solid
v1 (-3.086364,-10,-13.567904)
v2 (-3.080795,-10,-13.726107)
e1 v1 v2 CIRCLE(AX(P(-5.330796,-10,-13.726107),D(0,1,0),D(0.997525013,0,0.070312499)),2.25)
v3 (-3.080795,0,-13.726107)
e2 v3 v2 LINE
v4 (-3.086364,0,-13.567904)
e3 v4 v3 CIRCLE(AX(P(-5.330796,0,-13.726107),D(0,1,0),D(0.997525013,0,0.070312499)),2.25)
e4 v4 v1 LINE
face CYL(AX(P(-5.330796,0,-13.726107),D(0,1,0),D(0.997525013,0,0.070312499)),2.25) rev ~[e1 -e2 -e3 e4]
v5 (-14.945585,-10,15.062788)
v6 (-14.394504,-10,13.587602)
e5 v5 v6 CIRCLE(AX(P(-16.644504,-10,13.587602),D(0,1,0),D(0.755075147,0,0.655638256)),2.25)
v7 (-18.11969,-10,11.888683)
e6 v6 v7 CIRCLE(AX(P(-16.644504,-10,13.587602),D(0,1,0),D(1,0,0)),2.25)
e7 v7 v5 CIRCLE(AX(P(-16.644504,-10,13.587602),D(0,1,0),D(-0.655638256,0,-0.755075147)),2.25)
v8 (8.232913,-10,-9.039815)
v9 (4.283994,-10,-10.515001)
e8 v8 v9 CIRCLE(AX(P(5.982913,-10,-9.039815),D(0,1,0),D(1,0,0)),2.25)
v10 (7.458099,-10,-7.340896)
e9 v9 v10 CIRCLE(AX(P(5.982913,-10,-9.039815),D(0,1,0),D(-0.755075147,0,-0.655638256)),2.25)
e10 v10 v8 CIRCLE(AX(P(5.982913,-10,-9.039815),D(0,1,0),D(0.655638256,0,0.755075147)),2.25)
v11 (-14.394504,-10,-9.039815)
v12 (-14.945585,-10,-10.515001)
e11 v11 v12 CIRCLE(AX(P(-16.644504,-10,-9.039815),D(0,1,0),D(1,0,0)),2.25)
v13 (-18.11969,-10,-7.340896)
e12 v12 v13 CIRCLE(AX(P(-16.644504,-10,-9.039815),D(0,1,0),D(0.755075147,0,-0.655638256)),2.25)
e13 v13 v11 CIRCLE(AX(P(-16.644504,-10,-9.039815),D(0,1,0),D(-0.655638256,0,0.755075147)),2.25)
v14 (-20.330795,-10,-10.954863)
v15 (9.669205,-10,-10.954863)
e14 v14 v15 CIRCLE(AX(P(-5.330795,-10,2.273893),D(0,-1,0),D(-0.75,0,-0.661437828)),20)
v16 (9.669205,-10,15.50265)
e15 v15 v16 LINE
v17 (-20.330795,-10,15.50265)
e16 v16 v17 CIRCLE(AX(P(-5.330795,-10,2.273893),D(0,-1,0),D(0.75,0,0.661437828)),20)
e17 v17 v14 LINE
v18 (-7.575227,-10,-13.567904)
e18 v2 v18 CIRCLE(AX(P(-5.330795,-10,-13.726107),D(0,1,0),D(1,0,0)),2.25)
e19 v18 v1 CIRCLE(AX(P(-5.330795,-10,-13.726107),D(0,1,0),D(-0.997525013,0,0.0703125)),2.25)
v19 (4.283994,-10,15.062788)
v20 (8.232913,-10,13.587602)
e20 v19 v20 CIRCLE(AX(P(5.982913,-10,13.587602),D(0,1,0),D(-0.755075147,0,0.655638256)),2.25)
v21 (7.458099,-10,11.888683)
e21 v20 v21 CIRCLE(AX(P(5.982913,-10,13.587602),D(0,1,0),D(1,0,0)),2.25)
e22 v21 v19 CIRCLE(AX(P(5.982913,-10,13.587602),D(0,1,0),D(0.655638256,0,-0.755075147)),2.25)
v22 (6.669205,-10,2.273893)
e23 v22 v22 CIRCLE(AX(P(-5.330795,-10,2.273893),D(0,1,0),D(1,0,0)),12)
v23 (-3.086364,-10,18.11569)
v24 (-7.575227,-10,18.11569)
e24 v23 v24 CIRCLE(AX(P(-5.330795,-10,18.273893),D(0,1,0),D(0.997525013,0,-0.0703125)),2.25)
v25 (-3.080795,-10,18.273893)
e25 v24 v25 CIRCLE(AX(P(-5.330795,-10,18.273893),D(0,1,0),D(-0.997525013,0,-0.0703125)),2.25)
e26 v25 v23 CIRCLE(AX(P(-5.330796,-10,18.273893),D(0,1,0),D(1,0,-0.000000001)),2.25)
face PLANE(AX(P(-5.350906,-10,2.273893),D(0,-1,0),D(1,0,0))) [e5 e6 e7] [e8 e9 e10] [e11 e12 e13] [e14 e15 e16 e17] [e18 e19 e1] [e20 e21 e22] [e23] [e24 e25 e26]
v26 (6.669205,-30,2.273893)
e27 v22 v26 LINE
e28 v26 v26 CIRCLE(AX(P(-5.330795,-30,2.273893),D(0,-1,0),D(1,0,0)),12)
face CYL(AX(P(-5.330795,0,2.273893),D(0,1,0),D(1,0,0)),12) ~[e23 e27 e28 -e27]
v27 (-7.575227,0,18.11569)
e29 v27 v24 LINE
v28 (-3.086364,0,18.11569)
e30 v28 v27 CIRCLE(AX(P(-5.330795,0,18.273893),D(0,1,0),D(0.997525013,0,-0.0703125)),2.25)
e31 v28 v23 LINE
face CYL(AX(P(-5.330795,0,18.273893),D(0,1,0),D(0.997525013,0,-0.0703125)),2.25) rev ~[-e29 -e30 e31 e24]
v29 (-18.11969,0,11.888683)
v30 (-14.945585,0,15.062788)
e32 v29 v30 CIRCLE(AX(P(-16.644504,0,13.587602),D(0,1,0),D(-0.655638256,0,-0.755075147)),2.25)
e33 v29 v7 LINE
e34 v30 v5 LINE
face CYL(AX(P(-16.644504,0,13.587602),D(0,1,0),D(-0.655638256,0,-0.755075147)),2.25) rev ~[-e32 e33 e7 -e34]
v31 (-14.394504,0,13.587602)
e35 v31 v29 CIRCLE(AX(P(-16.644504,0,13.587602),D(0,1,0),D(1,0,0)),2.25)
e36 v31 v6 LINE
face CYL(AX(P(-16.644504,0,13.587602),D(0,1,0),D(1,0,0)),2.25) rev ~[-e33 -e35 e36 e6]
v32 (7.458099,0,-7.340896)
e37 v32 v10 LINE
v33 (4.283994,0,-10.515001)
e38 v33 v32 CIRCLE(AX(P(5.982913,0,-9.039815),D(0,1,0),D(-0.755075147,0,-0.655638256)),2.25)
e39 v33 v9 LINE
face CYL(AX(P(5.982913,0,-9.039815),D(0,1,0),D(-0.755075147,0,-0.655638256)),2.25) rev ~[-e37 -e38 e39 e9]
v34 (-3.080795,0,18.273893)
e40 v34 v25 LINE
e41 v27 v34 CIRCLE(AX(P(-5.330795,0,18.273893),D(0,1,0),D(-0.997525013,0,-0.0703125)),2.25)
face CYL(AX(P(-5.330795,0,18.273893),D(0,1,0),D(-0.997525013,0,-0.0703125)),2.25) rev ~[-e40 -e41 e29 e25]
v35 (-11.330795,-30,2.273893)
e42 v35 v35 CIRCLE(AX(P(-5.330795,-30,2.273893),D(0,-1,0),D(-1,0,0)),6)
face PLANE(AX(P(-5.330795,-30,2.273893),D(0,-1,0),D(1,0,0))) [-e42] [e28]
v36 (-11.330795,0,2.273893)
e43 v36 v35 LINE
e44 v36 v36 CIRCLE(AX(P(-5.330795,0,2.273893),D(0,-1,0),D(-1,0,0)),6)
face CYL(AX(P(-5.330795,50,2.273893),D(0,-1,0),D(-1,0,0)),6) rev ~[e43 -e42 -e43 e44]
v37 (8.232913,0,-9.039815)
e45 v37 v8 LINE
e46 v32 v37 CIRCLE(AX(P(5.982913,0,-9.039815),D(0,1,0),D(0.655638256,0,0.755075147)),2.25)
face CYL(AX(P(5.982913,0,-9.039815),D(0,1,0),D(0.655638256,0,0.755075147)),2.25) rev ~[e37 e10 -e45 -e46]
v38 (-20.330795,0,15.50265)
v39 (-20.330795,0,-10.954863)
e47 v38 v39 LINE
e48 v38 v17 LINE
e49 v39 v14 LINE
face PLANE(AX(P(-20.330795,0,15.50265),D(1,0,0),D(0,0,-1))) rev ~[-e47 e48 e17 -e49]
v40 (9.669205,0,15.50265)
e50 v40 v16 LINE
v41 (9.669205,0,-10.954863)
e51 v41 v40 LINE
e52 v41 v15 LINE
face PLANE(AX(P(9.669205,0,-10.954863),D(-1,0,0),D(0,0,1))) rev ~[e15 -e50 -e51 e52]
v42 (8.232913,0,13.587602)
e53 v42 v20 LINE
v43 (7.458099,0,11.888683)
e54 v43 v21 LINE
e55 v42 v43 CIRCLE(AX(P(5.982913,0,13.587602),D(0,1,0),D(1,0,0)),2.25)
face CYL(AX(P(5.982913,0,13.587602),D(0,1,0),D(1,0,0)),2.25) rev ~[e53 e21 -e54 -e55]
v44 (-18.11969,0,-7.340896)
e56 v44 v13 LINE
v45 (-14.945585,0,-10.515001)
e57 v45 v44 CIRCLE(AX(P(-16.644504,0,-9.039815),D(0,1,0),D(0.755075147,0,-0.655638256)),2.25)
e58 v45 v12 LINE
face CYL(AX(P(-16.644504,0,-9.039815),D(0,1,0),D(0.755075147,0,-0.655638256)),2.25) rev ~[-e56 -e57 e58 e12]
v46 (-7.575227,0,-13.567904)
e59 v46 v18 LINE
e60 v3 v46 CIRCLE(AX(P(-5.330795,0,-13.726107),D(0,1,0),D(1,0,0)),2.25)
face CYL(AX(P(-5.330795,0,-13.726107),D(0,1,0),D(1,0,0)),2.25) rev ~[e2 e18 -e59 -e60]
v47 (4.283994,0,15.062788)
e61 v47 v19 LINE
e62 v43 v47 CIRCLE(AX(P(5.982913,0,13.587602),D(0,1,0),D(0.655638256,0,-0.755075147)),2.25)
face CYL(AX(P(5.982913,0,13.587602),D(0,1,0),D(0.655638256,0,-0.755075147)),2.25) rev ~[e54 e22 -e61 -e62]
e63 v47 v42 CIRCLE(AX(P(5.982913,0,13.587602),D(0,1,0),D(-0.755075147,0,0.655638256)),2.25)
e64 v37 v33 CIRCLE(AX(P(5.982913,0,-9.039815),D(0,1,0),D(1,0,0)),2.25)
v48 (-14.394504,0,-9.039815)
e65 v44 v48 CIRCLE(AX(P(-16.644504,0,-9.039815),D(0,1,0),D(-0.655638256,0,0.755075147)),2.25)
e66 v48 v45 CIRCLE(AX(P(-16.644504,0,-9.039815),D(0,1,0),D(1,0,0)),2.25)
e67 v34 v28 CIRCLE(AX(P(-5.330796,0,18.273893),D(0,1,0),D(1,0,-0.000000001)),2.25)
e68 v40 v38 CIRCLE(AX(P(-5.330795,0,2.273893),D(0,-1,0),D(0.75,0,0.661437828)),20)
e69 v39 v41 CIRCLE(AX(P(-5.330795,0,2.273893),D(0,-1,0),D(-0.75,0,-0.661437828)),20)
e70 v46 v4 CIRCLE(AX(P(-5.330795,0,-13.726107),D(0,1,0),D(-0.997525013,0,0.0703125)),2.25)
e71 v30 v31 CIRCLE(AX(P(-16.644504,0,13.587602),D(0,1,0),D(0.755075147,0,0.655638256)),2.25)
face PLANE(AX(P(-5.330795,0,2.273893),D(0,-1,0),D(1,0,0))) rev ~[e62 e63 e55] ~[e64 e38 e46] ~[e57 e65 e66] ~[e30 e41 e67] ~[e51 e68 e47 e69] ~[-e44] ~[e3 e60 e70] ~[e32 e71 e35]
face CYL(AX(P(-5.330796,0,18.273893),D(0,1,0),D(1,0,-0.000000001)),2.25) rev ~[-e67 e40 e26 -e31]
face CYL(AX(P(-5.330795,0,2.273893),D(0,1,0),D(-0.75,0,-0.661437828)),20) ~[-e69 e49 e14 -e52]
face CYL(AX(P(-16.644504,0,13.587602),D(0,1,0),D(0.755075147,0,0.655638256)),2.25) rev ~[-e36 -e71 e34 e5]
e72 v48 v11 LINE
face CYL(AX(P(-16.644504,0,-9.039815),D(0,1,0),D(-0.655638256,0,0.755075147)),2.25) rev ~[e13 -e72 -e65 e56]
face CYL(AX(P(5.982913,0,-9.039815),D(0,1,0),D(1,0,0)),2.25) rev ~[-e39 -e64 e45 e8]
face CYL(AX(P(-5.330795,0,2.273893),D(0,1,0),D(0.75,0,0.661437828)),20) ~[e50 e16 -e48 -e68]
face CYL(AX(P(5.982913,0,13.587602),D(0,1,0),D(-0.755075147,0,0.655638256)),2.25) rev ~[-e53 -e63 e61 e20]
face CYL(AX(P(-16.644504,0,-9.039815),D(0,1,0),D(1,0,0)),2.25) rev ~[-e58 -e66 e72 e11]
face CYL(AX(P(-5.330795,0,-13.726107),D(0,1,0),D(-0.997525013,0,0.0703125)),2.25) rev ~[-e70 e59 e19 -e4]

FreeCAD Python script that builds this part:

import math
import FreeCAD as App
import Part
import Sketcher
from FreeCAD import Vector

doc = App.newDocument("Part")
params = doc.addObject("Spreadsheet::Sheet", "Params")
for row, (alias, value) in enumerate([
    ("sketch1_radius", "20 mm"),
    ("sketch1_radius2", "2.25 mm"),
    ("pad1_length", "10 mm"),
    ("sketch2_diameter", "24 mm"),
    ("pad2_length", "30 mm"),
    ("sketch3_diameter", "12 mm"),
    ("hole_diameter", "12 mm"),
    ("hole_depth", "50 mm"),
], start=1):
    params.set(f"A{row}", alias)
    params.set(f"B{row}", "=" + value)
    params.setAlias(f"B{row}", alias)

body = doc.addObject("PartDesign::Body", "Body")

# Sketch on XZ plane
sketch1 = body.newObject("Sketcher::SketchObject", "Sketch")
sketch1.AttachmentSupport = (doc.getObject("XZ_Plane"), [""])
sketch1.MapMode = "FlatFace"
sketch1.addGeometry(Part.ArcOfCircle(Part.Circle(Vector(-5.33, 2.27, 0), Vector(0, 0, 1), 20), math.radians(41), math.radians(139)), False)
sketch1.addGeometry(Part.LineSegment(Vector(-20.33, 15.5, 0), Vector(-20.33, -10.95, 0)), False)
sketch1.addGeometry(Part.ArcOfCircle(Part.Circle(Vector(-5.33, 2.27, 0), Vector(0, 0, 1), 20), math.radians(-139), math.radians(-41)), False)
sketch1.addGeometry(Part.LineSegment(Vector(9.67, -10.95, 0), Vector(9.67, 15.5, 0)), False)
sketch1.addGeometry(Part.ArcOfCircle(Part.Circle(Vector(-16.64, -9.04, 0), Vector(0, 0, 1), 2.25), math.radians(0), math.radians(131)), False)
sketch1.addGeometry(Part.ArcOfCircle(Part.Circle(Vector(-16.64, -9.04, 0), Vector(0, 0, 1), 2.25), math.radians(-41), math.radians(0)), False)
sketch1.addGeometry(Part.ArcOfCircle(Part.Circle(Vector(-16.64, -9.04, 0), Vector(0, 0, 1), 2.25), math.radians(131), math.radians(319)), False)
sketch1.addGeometry(Part.ArcOfCircle(Part.Circle(Vector(-5.33, -13.73, 0), Vector(0, 0, 1), 2.25), math.radians(4), math.radians(176)), False)
sketch1.addGeometry(Part.ArcOfCircle(Part.Circle(Vector(-5.33, -13.73, 0), Vector(0, 0, 1), 2.25), math.radians(0), math.radians(4.03)), False)
sketch1.addGeometry(Part.ArcOfCircle(Part.Circle(Vector(-5.33, -13.73, 0), Vector(0, 0, 1), 2.25), math.radians(176), math.radians(360)), False)
sketch1.addGeometry(Part.ArcOfCircle(Part.Circle(Vector(5.98, -9.04, 0), Vector(0, 0, 1), 2.25), math.radians(49), math.radians(221)), False)
sketch1.addGeometry(Part.ArcOfCircle(Part.Circle(Vector(5.98, -9.04, 0), Vector(0, 0, 1), 2.25), math.radians(0), math.radians(49)), False)
sketch1.addGeometry(Part.ArcOfCircle(Part.Circle(Vector(5.98, -9.04, 0), Vector(0, 0, 1), 2.25), math.radians(-139), math.radians(0)), False)
sketch1.addGeometry(Part.ArcOfCircle(Part.Circle(Vector(5.98, 13.59, 0), Vector(0, 0, 1), 2.25), math.radians(139), math.radians(311)), False)
sketch1.addGeometry(Part.ArcOfCircle(Part.Circle(Vector(5.98, 13.59, 0), Vector(0, 0, 1), 2.25), math.radians(0), math.radians(139)), False)
sketch1.addGeometry(Part.ArcOfCircle(Part.Circle(Vector(5.98, 13.59, 0), Vector(0, 0, 1), 2.25), math.radians(-49), math.radians(0)), False)
sketch1.addGeometry(Part.ArcOfCircle(Part.Circle(Vector(-5.33, 18.27, 0), Vector(0, 0, 1), 2.25), math.radians(-176), math.radians(-4)), False)
sketch1.addGeometry(Part.ArcOfCircle(Part.Circle(Vector(-5.33, 18.27, 0), Vector(0, 0, 1), 2.25), math.radians(0), math.radians(184)), False)
sketch1.addGeometry(Part.ArcOfCircle(Part.Circle(Vector(-5.33, 18.27, 0), Vector(0, 0, 1), 2.25), math.radians(-4.03), math.radians(0)), False)
sketch1.addGeometry(Part.ArcOfCircle(Part.Circle(Vector(-16.64, 13.59, 0), Vector(0, 0, 1), 2.25), math.radians(0), math.radians(41)), False)
sketch1.addGeometry(Part.ArcOfCircle(Part.Circle(Vector(-16.64, 13.59, 0), Vector(0, 0, 1), 2.25), math.radians(-131), math.radians(0)), False)
sketch1.addGeometry(Part.ArcOfCircle(Part.Circle(Vector(-16.64, 13.59, 0), Vector(0, 0, 1), 2.25), math.radians(41), math.radians(229)), False)
sketch1.addConstraint(Sketcher.Constraint("Coincident", 0, 2, 1, 1))
sketch1.addConstraint(Sketcher.Constraint("Coincident", 1, 2, 2, 1))
sketch1.addConstraint(Sketcher.Constraint("Coincident", 2, 2, 3, 1))
sketch1.addConstraint(Sketcher.Constraint("Coincident", 3, 2, 0, 1))
sketch1.addConstraint(Sketcher.Constraint("Tangent", 4, 1, 5, 2))
sketch1.addConstraint(Sketcher.Constraint("Tangent", 5, 1, 6, 2))
sketch1.addConstraint(Sketcher.Constraint("Tangent", 6, 1, 4, 2))
sketch1.addConstraint(Sketcher.Constraint("Tangent", 7, 1, 8, 2))
sketch1.addConstraint(Sketcher.Constraint("Tangent", 8, 1, 9, 2))
sketch1.addConstraint(Sketcher.Constraint("Tangent", 9, 1, 7, 2))
sketch1.addConstraint(Sketcher.Constraint("Tangent", 10, 1, 11, 2))
sketch1.addConstraint(Sketcher.Constraint("Tangent", 11, 1, 12, 2))
sketch1.addConstraint(Sketcher.Constraint("Tangent", 12, 1, 10, 2))
sketch1.addConstraint(Sketcher.Constraint("Tangent", 13, 1, 14, 2))
sketch1.addConstraint(Sketcher.Constraint("Tangent", 14, 1, 15, 2))
sketch1.addConstraint(Sketcher.Constraint("Tangent", 15, 1, 13, 2))
sketch1.addConstraint(Sketcher.Constraint("Tangent", 16, 1, 17, 2))
sketch1.addConstraint(Sketcher.Constraint("Tangent", 17, 1, 18, 2))
sketch1.addConstraint(Sketcher.Constraint("Tangent", 18, 1, 16, 2))
sketch1.addConstraint(Sketcher.Constraint("Tangent", 19, 1, 20, 2))
sketch1.addConstraint(Sketcher.Constraint("Tangent", 20, 1, 21, 2))
sketch1.addConstraint(Sketcher.Constraint("Tangent", 21, 1, 19, 2))
sketch1.addConstraint(Sketcher.Constraint("Vertical", 1))
sketch1.addConstraint(Sketcher.Constraint("Vertical", 3))
sketch1.addConstraint(Sketcher.Constraint("Coincident", 2, 3, 0, 3))
sketch1.addConstraint(Sketcher.Constraint("Equal", 0, 2))
sketch1.addConstraint(Sketcher.Constraint("Equal", 6, 7))
sketch1.addConstraint(Sketcher.Constraint("Equal", 9, 10))
sketch1.addConstraint(Sketcher.Constraint("Equal", 12, 13))
sketch1.addConstraint(Sketcher.Constraint("Equal", 15, 16))
sketch1.addConstraint(Sketcher.Constraint("Equal", 18, 19))
sketch1.addConstraint(Sketcher.Constraint("Horizontal", 6, 3, 10, 3))
sketch1.addConstraint(Sketcher.Constraint("Horizontal", 15, 3, 19, 3))
sketch1.addConstraint(Sketcher.Constraint("Horizontal", 1, 2, 2, 2))
sketch1.addConstraint(Sketcher.Constraint("Horizontal", 12, 3, 4, 1))
sketch1.addConstraint(Sketcher.Constraint("Horizontal", 9, 3, 8, 1))
sketch1.addConstraint(Sketcher.Constraint("Horizontal", 7, 1, 9, 1))
sketch1.addConstraint(Sketcher.Constraint("Horizontal", 6, 1, 10, 1))
sketch1.addConstraint(Sketcher.Constraint("Horizontal", 4, 1, 11, 1))
sketch1.addConstraint(Sketcher.Constraint("Horizontal", 5, 1, 12, 1))
sketch1.addConstraint(Sketcher.Constraint("Horizontal", 21, 3, 14, 1))
sketch1.addConstraint(Sketcher.Constraint("Horizontal", 18, 3, 17, 1))
sketch1.addConstraint(Sketcher.Constraint("Horizontal", 16, 1, 18, 1))
sketch1.addConstraint(Sketcher.Constraint("Horizontal", 14, 1, 19, 1))
sketch1.addConstraint(Sketcher.Constraint("Horizontal", 15, 1, 20, 1))
sketch1.addConstraint(Sketcher.Constraint("Horizontal", 13, 1, 21, 1))
sketch1.addConstraint(Sketcher.Constraint("Vertical", 2, 3, 7, 3))
sketch1.addConstraint(Sketcher.Constraint("Vertical", 12, 3, 13, 3))
sketch1.addConstraint(Sketcher.Constraint("Vertical", 9, 3, 16, 3))
sketch1.addConstraint(Sketcher.Constraint("Vertical", 6, 3, 19, 3))
sketch1.addConstraint(Sketcher.Constraint("Vertical", 12, 1, 13, 1))
sketch1.addConstraint(Sketcher.Constraint("Vertical", 10, 1, 15, 1))
sketch1.addConstraint(Sketcher.Constraint("Vertical", 9, 1, 16, 1))
sketch1.addConstraint(Sketcher.Constraint("Radius", 0, 20.0))
sketch1.addConstraint(Sketcher.Constraint("Radius", 4, 2.25))
sketch1.addConstraint(Sketcher.Constraint("DistanceY", 7, 3, 0, 3, 16.0))
sketch1.addConstraint(Sketcher.Constraint("DistanceY", 0, 3, 16, 3, 16.0))
sketch1.addConstraint(Sketcher.Constraint("DistanceX", 0, 2, 18, 3, 15.0))
sketch1.addConstraint(Sketcher.Constraint("DistanceY", 5, 1, -1, 1, 10.515001))
sketch1.addConstraint(Sketcher.Constraint("DistanceY", -1, 1, 13, 3, 13.587602))
sketch1.addConstraint(Sketcher.Constraint("DistanceX", -1, 1, 10, 1, 7.458099))
sketch1.addConstraint(Sketcher.Constraint("DistanceY", -1, 1, 0, 2, 15.50265))
sketch1.addConstraint(Sketcher.Constraint("DistanceX", 6, 1, -1, 1, 18.11969))
sketch1.addConstraint(Sketcher.Constraint("DistanceY", -1, 1, 16, 1, 18.11569))
sketch1.addConstraint(Sketcher.Constraint("DistanceX", 4, 3, 0, 3, 11.313708))
sketch1.addConstraint(Sketcher.Constraint("DistanceY", 4, 3, 0, 3, 11.313708))
sketch1.addConstraint(Sketcher.Constraint("DistanceX", 7, 3, 10, 3, 11.313708))
sketch1.setExpression("Constraints[53]", "Params.sketch1_radius")
sketch1.setExpression("Constraints[54]", "Params.sketch1_radius2")
pad1 = body.newObject("PartDesign::Pad", "Pad")
pad1.Profile = sketch1
pad1.setExpression("Length", "Params.pad1_length")

# Sketch on XZ plane
sketch2 = body.newObject("Sketcher::SketchObject", "Sketch001")
sketch2.AttachmentSupport = (doc.getObject("XZ_Plane"), [""])
sketch2.MapMode = "FlatFace"
sketch2.addGeometry(Part.Circle(Vector(-5, 2, 0), Vector(0, 0, 1), 12), False)
sketch2.addConstraint(Sketcher.Constraint("Diameter", 0, 24.0))
sketch2.addConstraint(Sketcher.Constraint("DistanceX", 0, 3, -1, 1, 5.330795))
sketch2.addConstraint(Sketcher.Constraint("DistanceY", -1, 1, 0, 3, 2.273893))
sketch2.setExpression("Constraints[0]", "Params.sketch2_diameter")
pad2 = body.newObject("PartDesign::Pad", "Pad001")
pad2.Profile = sketch2
pad2.setExpression("Length", "Params.pad2_length")

# Sketch on XZ plane
sketch3 = body.newObject("Sketcher::SketchObject", "Sketch002")
sketch3.AttachmentSupport = (doc.getObject("XZ_Plane"), [""])
sketch3.MapMode = "FlatFace"
sketch3.addGeometry(Part.Circle(Vector(-5, 2, 0), Vector(0, 0, 1), 6), False)
sketch3.addConstraint(Sketcher.Constraint("Diameter", 0, 12.0))
sketch3.addConstraint(Sketcher.Constraint("DistanceX", 0, 3, -1, 1, 5.330795))
sketch3.addConstraint(Sketcher.Constraint("DistanceY", -1, 1, 0, 3, 2.273893))
sketch3.setExpression("Constraints[0]", "Params.sketch3_diameter")
doc.recompute()
hole = body.newObject("PartDesign::Hole", "Hole")
hole.Profile = sketch3
hole.ThreadType = "None"
hole.setExpression("Diameter", "Params.hole_diameter")
hole.DepthType = "Dimension"
hole.setExpression("Depth", "Params.hole_depth")
hole.DrillPoint = "Angled"
hole.DrillPointAngle = 118
hole.Reversed = True

doc.recompute()
